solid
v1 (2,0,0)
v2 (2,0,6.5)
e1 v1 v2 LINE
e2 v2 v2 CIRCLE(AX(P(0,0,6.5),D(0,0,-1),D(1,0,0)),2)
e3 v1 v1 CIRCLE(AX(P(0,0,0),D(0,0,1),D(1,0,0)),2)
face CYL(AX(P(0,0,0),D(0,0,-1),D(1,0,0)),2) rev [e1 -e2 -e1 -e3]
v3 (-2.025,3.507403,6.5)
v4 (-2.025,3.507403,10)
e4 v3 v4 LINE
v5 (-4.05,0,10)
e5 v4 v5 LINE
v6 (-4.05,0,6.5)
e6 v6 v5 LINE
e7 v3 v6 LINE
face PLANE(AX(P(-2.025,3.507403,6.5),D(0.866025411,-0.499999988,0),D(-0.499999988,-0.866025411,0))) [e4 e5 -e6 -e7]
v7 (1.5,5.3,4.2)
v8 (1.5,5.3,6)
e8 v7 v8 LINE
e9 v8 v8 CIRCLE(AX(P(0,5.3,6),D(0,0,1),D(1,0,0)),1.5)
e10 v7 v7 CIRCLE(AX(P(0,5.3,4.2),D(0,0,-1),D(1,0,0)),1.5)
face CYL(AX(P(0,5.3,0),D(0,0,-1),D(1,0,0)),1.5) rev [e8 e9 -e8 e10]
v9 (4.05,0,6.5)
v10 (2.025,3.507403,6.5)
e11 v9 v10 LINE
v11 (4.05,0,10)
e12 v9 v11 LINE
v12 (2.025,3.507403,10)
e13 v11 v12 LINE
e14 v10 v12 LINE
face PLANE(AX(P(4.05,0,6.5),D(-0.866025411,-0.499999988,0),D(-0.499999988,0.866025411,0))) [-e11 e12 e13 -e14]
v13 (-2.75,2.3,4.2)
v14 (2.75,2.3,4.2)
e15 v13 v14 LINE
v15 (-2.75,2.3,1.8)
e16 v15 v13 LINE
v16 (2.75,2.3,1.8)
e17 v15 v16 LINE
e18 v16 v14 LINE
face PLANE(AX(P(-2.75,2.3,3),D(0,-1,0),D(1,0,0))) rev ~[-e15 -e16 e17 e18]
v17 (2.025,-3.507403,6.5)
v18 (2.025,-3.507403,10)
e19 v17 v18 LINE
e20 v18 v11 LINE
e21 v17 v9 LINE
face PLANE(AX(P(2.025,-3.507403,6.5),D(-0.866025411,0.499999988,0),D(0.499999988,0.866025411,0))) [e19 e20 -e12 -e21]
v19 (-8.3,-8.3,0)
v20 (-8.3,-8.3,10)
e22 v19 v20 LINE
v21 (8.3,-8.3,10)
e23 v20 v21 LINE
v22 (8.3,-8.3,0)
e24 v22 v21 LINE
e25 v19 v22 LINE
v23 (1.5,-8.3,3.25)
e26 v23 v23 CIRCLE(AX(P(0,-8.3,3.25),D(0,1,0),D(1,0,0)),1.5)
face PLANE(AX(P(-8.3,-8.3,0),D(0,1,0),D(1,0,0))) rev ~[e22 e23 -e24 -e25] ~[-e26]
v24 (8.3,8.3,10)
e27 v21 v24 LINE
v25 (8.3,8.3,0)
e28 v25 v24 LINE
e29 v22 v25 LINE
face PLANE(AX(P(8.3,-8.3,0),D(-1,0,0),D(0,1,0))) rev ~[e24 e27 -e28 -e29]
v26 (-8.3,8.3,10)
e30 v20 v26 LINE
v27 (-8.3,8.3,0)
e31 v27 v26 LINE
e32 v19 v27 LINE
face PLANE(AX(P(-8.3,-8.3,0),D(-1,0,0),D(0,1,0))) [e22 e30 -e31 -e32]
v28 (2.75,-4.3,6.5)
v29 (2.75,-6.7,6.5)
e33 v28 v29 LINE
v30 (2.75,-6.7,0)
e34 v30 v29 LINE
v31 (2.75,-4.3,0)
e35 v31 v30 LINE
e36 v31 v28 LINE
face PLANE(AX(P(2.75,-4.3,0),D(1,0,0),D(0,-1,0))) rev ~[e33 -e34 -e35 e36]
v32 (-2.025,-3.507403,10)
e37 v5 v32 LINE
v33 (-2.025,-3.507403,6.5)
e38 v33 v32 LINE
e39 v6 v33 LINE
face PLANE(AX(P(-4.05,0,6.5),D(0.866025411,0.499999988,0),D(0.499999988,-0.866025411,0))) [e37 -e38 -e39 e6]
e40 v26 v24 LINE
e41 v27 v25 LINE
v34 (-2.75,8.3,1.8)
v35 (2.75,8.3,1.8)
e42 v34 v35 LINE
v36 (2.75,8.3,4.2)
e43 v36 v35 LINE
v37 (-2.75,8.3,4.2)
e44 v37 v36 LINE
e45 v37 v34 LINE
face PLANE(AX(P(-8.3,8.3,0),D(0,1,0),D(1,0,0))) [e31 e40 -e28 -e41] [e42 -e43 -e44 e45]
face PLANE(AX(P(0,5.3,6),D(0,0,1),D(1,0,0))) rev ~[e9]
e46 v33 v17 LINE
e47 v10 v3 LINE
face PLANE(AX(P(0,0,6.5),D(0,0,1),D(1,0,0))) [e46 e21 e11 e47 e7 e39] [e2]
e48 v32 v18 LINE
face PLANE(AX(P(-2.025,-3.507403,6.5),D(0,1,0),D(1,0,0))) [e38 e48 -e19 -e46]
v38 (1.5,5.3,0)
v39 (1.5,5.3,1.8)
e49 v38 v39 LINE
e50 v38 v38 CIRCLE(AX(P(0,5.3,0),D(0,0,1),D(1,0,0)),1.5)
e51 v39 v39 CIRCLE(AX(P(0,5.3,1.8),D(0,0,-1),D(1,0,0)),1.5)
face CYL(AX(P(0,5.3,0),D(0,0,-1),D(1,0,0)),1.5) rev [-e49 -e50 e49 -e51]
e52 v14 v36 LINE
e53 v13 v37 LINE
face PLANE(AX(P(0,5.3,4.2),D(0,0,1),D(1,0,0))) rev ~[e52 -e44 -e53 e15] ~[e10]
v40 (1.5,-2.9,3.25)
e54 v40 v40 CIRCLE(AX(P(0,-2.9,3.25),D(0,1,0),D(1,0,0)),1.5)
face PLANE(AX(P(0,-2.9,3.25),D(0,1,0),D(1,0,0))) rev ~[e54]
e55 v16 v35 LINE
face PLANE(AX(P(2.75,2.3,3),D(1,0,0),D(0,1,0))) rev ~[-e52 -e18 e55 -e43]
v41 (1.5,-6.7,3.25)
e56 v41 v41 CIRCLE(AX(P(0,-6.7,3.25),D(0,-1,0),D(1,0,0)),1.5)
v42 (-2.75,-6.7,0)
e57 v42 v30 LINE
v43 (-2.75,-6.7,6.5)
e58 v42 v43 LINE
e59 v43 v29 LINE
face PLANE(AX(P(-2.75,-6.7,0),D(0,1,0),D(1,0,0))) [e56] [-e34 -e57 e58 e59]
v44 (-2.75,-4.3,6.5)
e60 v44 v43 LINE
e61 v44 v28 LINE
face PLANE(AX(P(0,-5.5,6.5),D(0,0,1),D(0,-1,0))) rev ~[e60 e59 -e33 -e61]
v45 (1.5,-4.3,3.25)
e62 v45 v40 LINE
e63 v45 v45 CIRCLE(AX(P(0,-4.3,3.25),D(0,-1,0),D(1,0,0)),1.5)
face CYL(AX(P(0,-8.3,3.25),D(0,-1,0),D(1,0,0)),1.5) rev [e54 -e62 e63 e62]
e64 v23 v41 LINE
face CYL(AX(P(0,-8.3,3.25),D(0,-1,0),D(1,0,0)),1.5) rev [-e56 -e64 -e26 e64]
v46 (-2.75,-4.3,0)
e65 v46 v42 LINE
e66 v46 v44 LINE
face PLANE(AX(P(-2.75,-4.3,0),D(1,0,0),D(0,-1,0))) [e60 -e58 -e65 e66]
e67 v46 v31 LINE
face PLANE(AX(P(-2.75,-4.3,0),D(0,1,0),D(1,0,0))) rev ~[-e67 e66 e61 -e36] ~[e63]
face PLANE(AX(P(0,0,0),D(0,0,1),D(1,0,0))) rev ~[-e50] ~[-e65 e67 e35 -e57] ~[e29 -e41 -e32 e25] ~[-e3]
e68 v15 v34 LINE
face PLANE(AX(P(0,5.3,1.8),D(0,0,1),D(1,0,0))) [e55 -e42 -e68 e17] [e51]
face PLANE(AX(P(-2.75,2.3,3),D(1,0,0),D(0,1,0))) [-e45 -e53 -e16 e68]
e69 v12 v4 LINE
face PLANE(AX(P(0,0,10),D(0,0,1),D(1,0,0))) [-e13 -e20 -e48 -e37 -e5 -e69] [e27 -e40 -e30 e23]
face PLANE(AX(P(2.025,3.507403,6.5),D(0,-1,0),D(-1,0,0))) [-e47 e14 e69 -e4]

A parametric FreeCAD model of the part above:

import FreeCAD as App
import Part
import Sketcher
from FreeCAD import Vector
Q = App.Units.Quantity


def add_polygon(sketch, points):
    """Adds a closed chain of lines whose ends are joined by coincident constraints."""
    first, n = sketch.GeometryCount, len(points)
    for a, b in zip(points, points[1:] + points[:1]):
        sketch.addGeometry(Part.LineSegment(App.Vector(*a, 0), App.Vector(*b, 0)), False)
    for i in range(n):
        sketch.addConstraint(Sketcher.Constraint("Coincident", first + i, 2, first + (i + 1) % n, 1))

doc = App.newDocument("Part")
params = doc.addObject("Spreadsheet::Sheet", "Params")
for row, (alias, value) in enumerate([
    ("sketch1_diameter", "4 mm"),
    ("pad1_length", "10 mm"),
    ("sketch2_width", "4.05 mm"),
    ("pad2_length", "3.5 mm"),
    ("sketch3_width", "5.5 mm"),
    ("sketch3_height", "2.4 mm"),
    ("pad3_length", "6.5 mm"),
    ("sketch4_diameter", "3 mm"),
    ("pad4_length", "5.4 mm"),
    ("sketch5_diameter", "3 mm"),
    ("pad5_length", "6 mm"),
    ("sketch6_height", "6 mm"),
    ("sketch6_width", "5.5 mm"),
    ("pad6_length", "2.4 mm"),
    ("sketch7_width", "16.6 mm"),
    ("pad7_length", "10 mm"),
], start=1):
    params.set(f"A{row}", alias)
    params.set(f"B{row}", "=" + value)
    params.setAlias(f"B{row}", alias)

body = doc.addObject("PartDesign::Body", "Body")

sketch1 = body.newObject("Sketcher::SketchObject", "Sketch")
sketch1.AttachmentSupport = (doc.getObject("XY_Plane"), [""])
sketch1.MapMode = "FlatFace"
sketch1.addGeometry(Part.Circle(Vector(0, 0, 0), Vector(0, 0, 1), 2), False)
sketch1.addConstraint([
    Sketcher.Constraint("Coincident", 0, 3, -1, 1),
    Sketcher.Constraint("Diameter", 0, 4.0),
])
sketch1.setExpression("Constraints[1]", "Params.sketch1_diameter")
pad1 = body.newObject("PartDesign::Pad", "Pad")
pad1.Profile = sketch1
pad1.setExpression("Length", "Params.pad1_length")
body2 = doc.addObject("PartDesign::Body", "Body001")

sketch2 = body2.newObject("Sketcher::SketchObject", "Sketch001")
sketch2.AttachmentSupport = (doc.getObject("XY_Plane001"), [""])
sketch2.MapMode = "FlatFace"
add_polygon(sketch2, [(-4, 0), (-2, -3.5), (2, -3.5), (4, 0), (2, 3.5), (-2, 3.5)])
sketch2.addConstraint([
    Sketcher.Constraint("Horizontal", 1),
    Sketcher.Constraint("Horizontal", 4),
    Sketcher.Constraint("Symmetric", 0, 2, 3, 2, -1, 1),
    Sketcher.Constraint("Symmetric", 2, 2, 5, 2, -1, 1),
    Sketcher.Constraint("PointOnObject", 2, 2, -1),
    Sketcher.Constraint("Parallel", 2, 5),
    Sketcher.Constraint("Vertical", 1, 2, 3, 2),
    Sketcher.Constraint("Angle", 0, Q("-60.000001 deg")),
    Sketcher.Constraint("DistanceX", 1, 1, 1, 2, 4.05),
    Sketcher.Constraint("DistanceX", 5, 2, 2, 2, 8.1),
])
sketch2.setExpression("Constraints[14]", "Params.sketch2_width")
pad2 = body2.newObject("PartDesign::Pad", "Pad001")
pad2.Profile = sketch2
pad2.setExpression("Length", "Params.pad2_length")
body3 = doc.addObject("PartDesign::Body", "Body002")
doc.recompute()

body2.Placement = App.Placement(Vector(0, 0, 6.5), App.Rotation(Vector(0, 0, 1), 0))
boolean = body3.newObject("PartDesign::Boolean", "Boolean")
boolean.Type = "Fuse"
boolean.addObjects([body2])
doc.recompute()

boolean2 = body3.newObject("PartDesign::Boolean", "Boolean001")
boolean2.Type = "Fuse"
boolean2.addObjects([body])
body4 = doc.addObject("PartDesign::Body", "Body003")

sketch3 = body4.newObject("Sketcher::SketchObject", "Sketch002")
sketch3.AttachmentSupport = (doc.getObject("XY_Plane003"), [""])
sketch3.MapMode = "FlatFace"
add_polygon(sketch3, [(2.8, -4.5), (-2.8, -4.5), (-2.8, -6.9), (2.8, -6.9)])
sketch3.addConstraint([
    Sketcher.Constraint("Horizontal", 0),
    Sketcher.Constraint("Vertical", 1),
    Sketcher.Constraint("Horizontal", 2),
    Sketcher.Constraint("Vertical", 3),
    Sketcher.Constraint("DistanceX", 0, 2, 0, 1, 5.5),
    Sketcher.Constraint("DistanceY", 1, 2, 1, 1, 2.4),
    Sketcher.Constraint("DistanceY", 0, 2, -1, 1, 4.5),
    Sketcher.Constraint("DistanceX", 0, 2, -1, 1, 2.75),
])
sketch3.setExpression("Constraints[8]", "Params.sketch3_width")
sketch3.setExpression("Constraints[9]", "Params.sketch3_height")
pad3 = body4.newObject("PartDesign::Pad", "Pad002")
pad3.Profile = sketch3
pad3.setExpression("Length", "Params.pad3_length")
body5 = doc.addObject("PartDesign::Body", "Body004")

sketch4 = body5.newObject("Sketcher::SketchObject", "Sketch003")
sketch4.AttachmentSupport = (doc.getObject("XZ_Plane004"), [""])
sketch4.MapMode = "FlatFace"
sketch4.AttachmentOffset = App.Placement(Vector(0, 0, 8.5), App.Rotation())
sketch4.addGeometry(Part.Circle(Vector(0, 3.2, 0), Vector(0, 0, 1), 1.5), False)
sketch4.addConstraint([
    Sketcher.Constraint("PointOnObject", 0, 3, -2),
    Sketcher.Constraint("Diameter", 0, 3.0),
    Sketcher.Constraint("DistanceY", -1, 1, 0, 3, 3.25),
])
sketch4.setExpression("Constraints[1]", "Params.sketch4_diameter")
pad4 = body5.newObject("PartDesign::Pad", "Pad003")
pad4.Profile = sketch4
pad4.setExpression("Length", "Params.pad4_length")
pad4.Reversed = True
doc.recompute()

boolean3 = body5.newObject("PartDesign::Boolean", "Boolean002")
boolean3.Type = "Fuse"
boolean3.addObjects([body4])
body6 = doc.addObject("PartDesign::Body", "Body005")
doc.recompute()

body5.Placement = App.Placement(Vector(0, 0.2, 0), App.Rotation(Vector(0, 0, 1), 0))
boolean4 = body6.newObject("PartDesign::Boolean", "Boolean003")
boolean4.Type = "Fuse"
boolean4.addObjects([body5])
body7 = doc.addObject("PartDesign::Body", "Body006")

sketch5 = body7.newObject("Sketcher::SketchObject", "Sketch004")
sketch5.AttachmentSupport = (doc.getObject("XY_Plane006"), [""])
sketch5.MapMode = "FlatFace"
sketch5.AttachmentOffset = App.Placement(Vector(0, 0, -3), App.Rotation())
sketch5.addGeometry(Part.Circle(Vector(0, 3, 0), Vector(0, 0, 1), 1.5), False)
sketch5.addConstraint([
    Sketcher.Constraint("PointOnObject", 0, 3, -2),
    Sketcher.Constraint("Diameter", 0, 3.0),
    Sketcher.Constraint("DistanceY", -1, 1, 0, 3, 3.0),
])
sketch5.setExpression("Constraints[1]", "Params.sketch5_diameter")
pad5 = body7.newObject("PartDesign::Pad", "Pad004")
pad5.Profile = sketch5
pad5.setExpression("Length", "Params.pad5_length")
body8 = doc.addObject("PartDesign::Body", "Body007")

sketch6 = body8.newObject("Sketcher::SketchObject", "Sketch005")
sketch6.AttachmentSupport = (doc.getObject("XY_Plane007"), [""])
sketch6.MapMode = "FlatFace"
add_polygon(sketch6, [(-3, 6), (-3, 0), (3, 0), (3, 6)])
sketch6.addConstraint([
    Sketcher.Constraint("Vertical", 0),
    Sketcher.Constraint("Horizontal", 1),
    Sketcher.Constraint("Vertical", 2),
    Sketcher.Constraint("Horizontal", 3),
    Sketcher.Constraint("Symmetric", 0, 2, 1, 2, -1, 1),
    Sketcher.Constraint("DistanceY", 0, 2, 0, 1, 6.0),
    Sketcher.Constraint("DistanceX", 1, 1, 1, 2, 5.5),
])
sketch6.setExpression("Constraints[9]", "Params.sketch6_height")
sketch6.setExpression("Constraints[10]", "Params.sketch6_width")
pad6 = body8.newObject("PartDesign::Pad", "Pad005")
pad6.Profile = sketch6
pad6.setExpression("Length", "Params.pad6_length")
pad6.Midplane = True
doc.recompute()

boolean5 = body8.newObject("PartDesign::Boolean", "Boolean004")
boolean5.Type = "Fuse"
boolean5.addObjects([body7])
body9 = doc.addObject("PartDesign::Body", "Body008")
body9.AllowCompound = True
doc.recompute()

body8.Placement = App.Placement(Vector(0, 2.3, 3), App.Rotation(Vector(0, 0, 1), 0))
boolean6 = body9.newObject("PartDesign::Boolean", "Boolean005")
boolean6.Type = "Fuse"
boolean6.addObjects([body8])
doc.recompute()

boolean7 = body9.newObject("PartDesign::Boolean", "Boolean006")
boolean7.Type = "Fuse"
boolean7.addObjects([body3])
doc.recompute()

boolean8 = body9.newObject("PartDesign::Boolean", "Boolean007")
boolean8.Type = "Fuse"
boolean8.addObjects([body6])
body10 = doc.addObject("PartDesign::Body", "Body009")

sketch7 = body10.newObject("Sketcher::SketchObject", "Sketch006")
sketch7.AttachmentSupport = (doc.getObject("XY_Plane009"), [""])
sketch7.MapMode = "FlatFace"
add_polygon(sketch7, [(-8, 8), (-8, -8), (8, -8), (8, 8)])
sketch7.addConstraint([
    Sketcher.Constraint("Vertical", 0),
    Sketcher.Constraint("Horizontal", 1),
    Sketcher.Constraint("Vertical", 2),
    Sketcher.Constraint("Horizontal", 3),
    Sketcher.Constraint("Symmetric", 0, 2, 2, 2, -1, 1),
    Sketcher.Constraint("Equal", 3, 0),
    Sketcher.Constraint("DistanceX", 1, 1, 1, 2, 16.6),
])
sketch7.setExpression("Constraints[10]", "Params.sketch7_width")
pad7 = body10.newObject("PartDesign::Pad", "Pad006")
pad7.Profile = sketch7
pad7.setExpression("Length", "Params.pad7_length")
doc.recompute()

boolean9 = body10.newObject("PartDesign::Boolean", "Boolean008")
boolean9.Type = "Cut"
boolean9.addObjects([body9])

doc.recompute()
